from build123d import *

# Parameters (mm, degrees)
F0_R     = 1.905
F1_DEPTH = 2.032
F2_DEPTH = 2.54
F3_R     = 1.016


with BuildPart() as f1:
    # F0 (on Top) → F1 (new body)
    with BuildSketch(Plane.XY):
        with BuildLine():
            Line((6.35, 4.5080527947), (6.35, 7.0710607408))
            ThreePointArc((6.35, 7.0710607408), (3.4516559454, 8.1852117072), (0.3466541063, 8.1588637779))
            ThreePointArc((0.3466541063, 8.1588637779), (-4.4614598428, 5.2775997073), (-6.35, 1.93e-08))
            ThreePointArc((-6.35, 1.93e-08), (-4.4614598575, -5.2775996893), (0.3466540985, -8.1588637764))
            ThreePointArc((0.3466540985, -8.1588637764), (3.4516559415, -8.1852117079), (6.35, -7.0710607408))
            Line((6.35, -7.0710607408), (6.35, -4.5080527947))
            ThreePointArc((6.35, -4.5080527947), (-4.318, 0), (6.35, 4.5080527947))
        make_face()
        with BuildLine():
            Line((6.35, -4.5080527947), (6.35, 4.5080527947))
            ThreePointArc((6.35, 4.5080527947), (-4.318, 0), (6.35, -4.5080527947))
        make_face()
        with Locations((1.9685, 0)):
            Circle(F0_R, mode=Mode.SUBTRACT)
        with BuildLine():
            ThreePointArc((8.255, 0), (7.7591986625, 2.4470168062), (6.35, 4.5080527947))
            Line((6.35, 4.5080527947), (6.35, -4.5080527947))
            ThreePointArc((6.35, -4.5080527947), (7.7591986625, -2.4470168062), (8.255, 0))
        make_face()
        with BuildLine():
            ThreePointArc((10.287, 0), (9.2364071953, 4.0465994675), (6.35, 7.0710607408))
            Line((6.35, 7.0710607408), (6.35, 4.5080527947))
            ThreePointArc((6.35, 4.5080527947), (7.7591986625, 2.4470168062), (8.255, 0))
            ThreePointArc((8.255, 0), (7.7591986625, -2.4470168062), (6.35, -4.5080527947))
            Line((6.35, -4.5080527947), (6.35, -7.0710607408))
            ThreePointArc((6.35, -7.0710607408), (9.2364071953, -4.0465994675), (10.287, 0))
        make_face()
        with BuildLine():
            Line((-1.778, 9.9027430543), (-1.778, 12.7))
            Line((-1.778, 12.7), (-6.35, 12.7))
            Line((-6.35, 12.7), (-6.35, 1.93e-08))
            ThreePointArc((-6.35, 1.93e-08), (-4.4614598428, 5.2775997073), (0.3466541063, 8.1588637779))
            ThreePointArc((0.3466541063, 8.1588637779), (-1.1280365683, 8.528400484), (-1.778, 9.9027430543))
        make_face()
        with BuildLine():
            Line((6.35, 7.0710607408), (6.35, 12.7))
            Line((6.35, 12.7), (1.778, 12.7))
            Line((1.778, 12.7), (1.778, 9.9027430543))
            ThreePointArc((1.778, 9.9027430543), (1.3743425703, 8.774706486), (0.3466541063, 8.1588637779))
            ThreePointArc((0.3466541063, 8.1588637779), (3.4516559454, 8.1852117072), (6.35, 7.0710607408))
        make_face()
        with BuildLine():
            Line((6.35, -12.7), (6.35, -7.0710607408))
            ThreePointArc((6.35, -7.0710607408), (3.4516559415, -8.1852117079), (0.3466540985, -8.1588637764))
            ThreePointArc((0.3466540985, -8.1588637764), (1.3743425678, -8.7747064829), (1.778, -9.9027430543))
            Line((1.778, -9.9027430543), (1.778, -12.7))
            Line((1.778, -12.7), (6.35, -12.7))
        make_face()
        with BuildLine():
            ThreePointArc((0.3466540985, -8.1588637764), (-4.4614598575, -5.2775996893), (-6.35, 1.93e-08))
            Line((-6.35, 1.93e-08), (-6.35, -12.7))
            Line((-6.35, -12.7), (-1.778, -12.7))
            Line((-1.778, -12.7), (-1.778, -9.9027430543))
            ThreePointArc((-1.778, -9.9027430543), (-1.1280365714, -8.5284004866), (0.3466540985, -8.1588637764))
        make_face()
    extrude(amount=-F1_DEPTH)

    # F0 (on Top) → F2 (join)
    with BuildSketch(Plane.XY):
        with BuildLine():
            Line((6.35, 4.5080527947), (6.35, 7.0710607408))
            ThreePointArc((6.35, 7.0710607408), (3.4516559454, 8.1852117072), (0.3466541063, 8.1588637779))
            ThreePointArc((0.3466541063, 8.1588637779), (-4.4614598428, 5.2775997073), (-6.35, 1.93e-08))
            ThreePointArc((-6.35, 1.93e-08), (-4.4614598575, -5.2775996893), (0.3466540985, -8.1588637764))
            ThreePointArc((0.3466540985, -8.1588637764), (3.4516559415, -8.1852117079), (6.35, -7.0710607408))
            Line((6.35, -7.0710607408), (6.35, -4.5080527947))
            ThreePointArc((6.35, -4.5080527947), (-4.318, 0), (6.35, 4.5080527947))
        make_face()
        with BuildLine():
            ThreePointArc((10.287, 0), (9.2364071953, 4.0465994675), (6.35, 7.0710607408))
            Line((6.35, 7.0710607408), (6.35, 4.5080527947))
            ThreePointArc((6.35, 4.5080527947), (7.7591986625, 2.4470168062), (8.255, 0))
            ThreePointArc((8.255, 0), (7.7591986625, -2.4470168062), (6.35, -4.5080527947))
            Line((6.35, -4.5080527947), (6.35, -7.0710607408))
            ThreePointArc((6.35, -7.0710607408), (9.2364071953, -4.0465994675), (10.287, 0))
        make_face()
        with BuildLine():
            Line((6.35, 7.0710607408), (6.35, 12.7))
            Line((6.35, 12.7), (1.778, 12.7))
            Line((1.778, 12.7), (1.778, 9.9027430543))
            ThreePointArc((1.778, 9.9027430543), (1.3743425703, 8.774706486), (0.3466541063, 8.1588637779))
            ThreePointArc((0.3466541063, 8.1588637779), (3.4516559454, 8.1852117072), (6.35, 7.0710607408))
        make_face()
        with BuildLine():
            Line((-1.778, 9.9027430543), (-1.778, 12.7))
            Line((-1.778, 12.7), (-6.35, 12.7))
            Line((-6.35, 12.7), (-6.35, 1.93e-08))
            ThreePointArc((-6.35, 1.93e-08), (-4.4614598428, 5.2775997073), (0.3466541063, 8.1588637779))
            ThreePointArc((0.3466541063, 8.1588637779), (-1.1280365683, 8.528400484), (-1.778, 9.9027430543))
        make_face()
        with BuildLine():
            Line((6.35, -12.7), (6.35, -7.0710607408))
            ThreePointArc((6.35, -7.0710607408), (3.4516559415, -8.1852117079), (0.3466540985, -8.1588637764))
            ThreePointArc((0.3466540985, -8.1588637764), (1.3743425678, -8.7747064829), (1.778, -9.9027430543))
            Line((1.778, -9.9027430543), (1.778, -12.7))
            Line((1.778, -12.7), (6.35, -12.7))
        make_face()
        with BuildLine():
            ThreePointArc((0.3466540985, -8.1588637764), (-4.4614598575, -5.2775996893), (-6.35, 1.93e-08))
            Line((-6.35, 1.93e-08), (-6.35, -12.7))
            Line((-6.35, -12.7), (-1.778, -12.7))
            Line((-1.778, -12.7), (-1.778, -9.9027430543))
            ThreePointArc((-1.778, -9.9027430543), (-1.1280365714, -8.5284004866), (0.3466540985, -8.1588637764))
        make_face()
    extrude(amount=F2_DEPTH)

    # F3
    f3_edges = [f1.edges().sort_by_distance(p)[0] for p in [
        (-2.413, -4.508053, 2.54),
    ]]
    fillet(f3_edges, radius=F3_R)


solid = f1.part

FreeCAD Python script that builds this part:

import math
import FreeCAD as App
import Part
import Sketcher
Q = App.Units.Quantity


def edges_at(feature, points):
    """Names of the edges that pass closest to the given points."""
    edges = feature.Shape.Edges
    near = lambda p: min(range(len(edges)), key=lambda i: edges[i].distToShape(Part.Vertex(*p))[0])
    return sorted({f"Edge{near(p) + 1}" for p in points})

doc = App.newDocument("Part")
body = doc.addObject("PartDesign::Body", "Body")

# Sketch on XY plane
sketch1 = body.newObject("Sketcher::SketchObject", "Sketch")
sketch1.AttachmentSupport = (doc.getObject("XY_Plane"), [""])
sketch1.MapMode = "FlatFace"
sketch1.addGeometry([
    Part.ArcOfCircle(Part.Circle(App.Vector(0, 9.9, 0), App.Vector(0, 0, 1), 1.8), math.radians(180), math.radians(281)),  # 0
    Part.LineSegment(App.Vector(-1.8, 9.9, 0), App.Vector(-1.8, 12.7, 0)),  # 1
    Part.LineSegment(App.Vector(-1.8, 12.7, 0), App.Vector(-6.3, 12.7, 0)),  # 2
    Part.LineSegment(App.Vector(-6.3, 12.7, 0), App.Vector(-6.3, -12.7, 0)),  # 3
    Part.LineSegment(App.Vector(-6.3, -12.7, 0), App.Vector(-1.8, -12.7, 0)),  # 4
    Part.LineSegment(App.Vector(-1.8, -12.7, 0), App.Vector(-1.8, -9.9, 0)),  # 5
    Part.ArcOfCircle(Part.Circle(App.Vector(0, -9.9, 0), App.Vector(0, 0, 1), 1.8), math.radians(79), math.radians(180)),  # 6
    Part.ArcOfCircle(Part.Circle(App.Vector(0, -9.9, 0), App.Vector(0, 0, 1), 1.8), math.radians(0), math.radians(79)),  # 7
    Part.LineSegment(App.Vector(1.8, -9.9, 0), App.Vector(1.8, -12.7, 0)),  # 8
    Part.LineSegment(App.Vector(1.8, -12.7, 0), App.Vector(6.3, -12.7, 0)),  # 9
    Part.LineSegment(App.Vector(6.3, -12.7, 0), App.Vector(6.3, -7.1, 0)),  # 10
    Part.ArcOfCircle(Part.Circle(App.Vector(2, 0, 0), App.Vector(0, 0, 1), 8.3), math.radians(-58), math.radians(0)),  # 11
    Part.ArcOfCircle(Part.Circle(App.Vector(2, 0, 0), App.Vector(0, 0, 1), 8.3), math.radians(0), math.radians(58)),  # 12
    Part.LineSegment(App.Vector(6.3, 7.1, 0), App.Vector(6.3, 12.7, 0)),  # 13
    Part.LineSegment(App.Vector(6.3, 12.7, 0), App.Vector(1.8, 12.7, 0)),  # 14
    Part.LineSegment(App.Vector(1.8, 12.7, 0), App.Vector(1.8, 9.9, 0)),  # 15
    Part.ArcOfCircle(Part.Circle(App.Vector(0, 9.9, 0), App.Vector(0, 0, 1), 1.8), math.radians(-79), math.radians(0)),  # 16
    Part.Circle(App.Vector(2, 0, 0), App.Vector(0, 0, 1), 1.9),  # 17
], False)
sketch1.addConstraint([
    Sketcher.Constraint("Tangent", 0, 1, 1, 1),
    Sketcher.Constraint("Coincident", 1, 2, 2, 1),
    Sketcher.Constraint("Coincident", 2, 2, 3, 1),
    Sketcher.Constraint("Coincident", 3, 2, 4, 1),
    Sketcher.Constraint("Coincident", 4, 2, 5, 1),
    Sketcher.Constraint("Tangent", 5, 2, 6, 2),
    Sketcher.Constraint("Tangent", 6, 1, 7, 2),
    Sketcher.Constraint("Tangent", 7, 1, 8, 1),
    Sketcher.Constraint("Coincident", 8, 2, 9, 1),
    Sketcher.Constraint("Coincident", 9, 2, 10, 1),
    Sketcher.Constraint("Coincident", 10, 2, 11, 1),
    Sketcher.Constraint("Tangent", 11, 2, 12, 1),
    Sketcher.Constraint("Coincident", 12, 2, 13, 1),
    Sketcher.Constraint("Coincident", 13, 2, 14, 1),
    Sketcher.Constraint("Coincident", 14, 2, 15, 1),
    Sketcher.Constraint("Tangent", 15, 2, 16, 2),
    Sketcher.Constraint("Tangent", 16, 1, 0, 2),
    Sketcher.Constraint("Vertical", 1),
    Sketcher.Constraint("Horizontal", 2),
    Sketcher.Constraint("Vertical", 3),
    Sketcher.Constraint("Horizontal", 4),
    Sketcher.Constraint("Vertical", 5),
    Sketcher.Constraint("Vertical", 8),
    Sketcher.Constraint("Horizontal", 9),
    Sketcher.Constraint("Vertical", 10),
    Sketcher.Constraint("Vertical", 13),
    Sketcher.Constraint("Horizontal", 14),
    Sketcher.Constraint("Vertical", 15),
    Sketcher.Constraint("Coincident", 17, 3, 11, 3),
    Sketcher.Constraint("Equal", 0, 6),
    Sketcher.Constraint("Equal", 6, 7),
    Sketcher.Constraint("Equal", 11, 12),
    Sketcher.Constraint("Equal", 7, 16),
    Sketcher.Constraint("Symmetric", 0, 3, 6, 3, -1, 1),
    Sketcher.Constraint("Symmetric", 2, 2, 9, 2, -1, 1),
    Sketcher.Constraint("Symmetric", 3, 2, 13, 2, -1, 1),
    Sketcher.Constraint("Symmetric", 4, 2, 8, 2, -2),
    Sketcher.Constraint("PointOnObject", 11, 3, -1),
    Sketcher.Constraint("PointOnObject", 11, 2, -1),
    Sketcher.Constraint("Vertical", 6, 1, 16, 1),
    Sketcher.Constraint("Diameter", 17, Q("0.15 in")),
    Sketcher.Constraint("DistanceY", 3, 2, 3, 1, Q("1 in")),
    Sketcher.Constraint("Radius", 0, Q("0.07 in")),
    Sketcher.Constraint("DistanceX", 2, 2, 2, 1, Q("0.18 in")),
    Sketcher.Constraint("Radius", 11, Q("0.3275 in")),
    Sketcher.Constraint("DistanceX", -1, 1, 11, 2, Q("0.405 in")),
    Sketcher.Constraint("DistanceY", 1, 1, 1, 2, Q("2.797257 mm")),
    Sketcher.Constraint("DistanceY", 6, 3, 6, 1, Q("1.743879 mm")),
])
pad1 = body.newObject("PartDesign::Pad", "Pad")
pad1.Profile = sketch1
pad1.Length = Q("0.08 in")
pad1.Reversed = True

# Sketch on XY plane
sketch2 = body.newObject("Sketcher::SketchObject", "Sketch001")
sketch2.AttachmentSupport = (doc.getObject("XY_Plane"), [""])
sketch2.MapMode = "FlatFace"
sketch2.addGeometry([
    Part.ArcOfCircle(Part.Circle(App.Vector(0, -9.9, 0), App.Vector(0, 0, 1), 1.8), math.radians(0), math.radians(79)),  # 0
    Part.LineSegment(App.Vector(1.8, -9.9, 0), App.Vector(1.8, -12.7, 0)),  # 1
    Part.LineSegment(App.Vector(1.8, -12.7, 0), App.Vector(6.3, -12.7, 0)),  # 2
    Part.LineSegment(App.Vector(6.3, -12.7, 0), App.Vector(6.3, -7.1, 0)),  # 3
    Part.ArcOfCircle(Part.Circle(App.Vector(2, 0, 0), App.Vector(0, 0, 1), 8.3), math.radians(-58), math.radians(0)),  # 4
    Part.ArcOfCircle(Part.Circle(App.Vector(2, 0, 0), App.Vector(0, 0, 1), 8.3), math.radians(0), math.radians(58)),  # 5
    Part.LineSegment(App.Vector(6.3, 7.1, 0), App.Vector(6.3, 12.7, 0)),  # 6
    Part.LineSegment(App.Vector(6.3, 12.7, 0), App.Vector(1.8, 12.7, 0)),  # 7
    Part.LineSegment(App.Vector(1.8, 12.7, 0), App.Vector(1.8, 9.9, 0)),  # 8
    Part.ArcOfCircle(Part.Circle(App.Vector(0, 9.9, 0), App.Vector(0, 0, 1), 1.8), math.radians(-79), math.radians(0)),  # 9
    Part.ArcOfCircle(Part.Circle(App.Vector(0, 9.9, 0), App.Vector(0, 0, 1), 1.8), math.radians(180), math.radians(281)),  # 10
    Part.LineSegment(App.Vector(-1.8, 9.9, 0), App.Vector(-1.8, 12.7, 0)),  # 11
    Part.LineSegment(App.Vector(-1.8, 12.7, 0), App.Vector(-6.3, 12.7, 0)),  # 12
    Part.LineSegment(App.Vector(-6.3, 12.7, 0), App.Vector(-6.3, -12.7, 0)),  # 13
    Part.LineSegment(App.Vector(-6.3, -12.7, 0), App.Vector(-1.8, -12.7, 0)),  # 14
    Part.LineSegment(App.Vector(-1.8, -12.7, 0), App.Vector(-1.8, -9.9, 0)),  # 15
    Part.ArcOfCircle(Part.Circle(App.Vector(0, -9.9, 0), App.Vector(0, 0, 1), 1.8), math.radians(79), math.radians(180)),  # 16
    Part.ArcOfCircle(Part.Circle(App.Vector(2, 0, 0), App.Vector(0, 0, 1), 6.3), math.radians(46), math.radians(314)),  # 17
    Part.ArcOfCircle(Part.Circle(App.Vector(2, 0, 0), App.Vector(0, 0, 1), 6.3), math.radians(0), math.radians(46)),  # 18
    Part.ArcOfCircle(Part.Circle(App.Vector(2, 0, 0), App.Vector(0, 0, 1), 6.3), math.radians(-46), math.radians(0)),  # 19
], False)
sketch2.addConstraint([
    Sketcher.Constraint("Tangent", 0, 1, 1, 1),
    Sketcher.Constraint("Coincident", 1, 2, 2, 1),
    Sketcher.Constraint("Coincident", 2, 2, 3, 1),
    Sketcher.Constraint("Coincident", 3, 2, 4, 1),
    Sketcher.Constraint("Tangent", 4, 2, 5, 1),
    Sketcher.Constraint("Coincident", 5, 2, 6, 1),
    Sketcher.Constraint("Coincident", 6, 2, 7, 1),
    Sketcher.Constraint("Coincident", 7, 2, 8, 1),
    Sketcher.Constraint("Tangent", 8, 2, 9, 2),
    Sketcher.Constraint("Tangent", 9, 1, 10, 2),
    Sketcher.Constraint("Tangent", 10, 1, 11, 1),
    Sketcher.Constraint("Coincident", 11, 2, 12, 1),
    Sketcher.Constraint("Coincident", 12, 2, 13, 1),
    Sketcher.Constraint("Coincident", 13, 2, 14, 1),
    Sketcher.Constraint("Coincident", 14, 2, 15, 1),
    Sketcher.Constraint("Tangent", 15, 2, 16, 2),
    Sketcher.Constraint("Tangent", 16, 1, 0, 2),
    Sketcher.Constraint("Tangent", 17, 1, 18, 2),
    Sketcher.Constraint("Tangent", 18, 1, 19, 2),
    Sketcher.Constraint("Tangent", 19, 1, 17, 2),
    Sketcher.Constraint("Vertical", 1),
    Sketcher.Constraint("Horizontal", 2),
    Sketcher.Constraint("Vertical", 3),
    Sketcher.Constraint("Vertical", 6),
    Sketcher.Constraint("Horizontal", 7),
    Sketcher.Constraint("Vertical", 8),
    Sketcher.Constraint("Vertical", 11),
    Sketcher.Constraint("Horizontal", 12),
    Sketcher.Constraint("Vertical", 13),
    Sketcher.Constraint("Horizontal", 14),
    Sketcher.Constraint("Vertical", 15),
    Sketcher.Constraint("Coincident", 17, 3, 4, 3),
    Sketcher.Constraint("Equal", 4, 5),
    Sketcher.Constraint("Equal", 0, 9),
    Sketcher.Constraint("Equal", 9, 10),
    Sketcher.Constraint("Equal", 10, 16),
    Sketcher.Constraint("Symmetric", 0, 3, 9, 3, -1, 1),
    Sketcher.Constraint("Symmetric", 2, 2, 12, 2, -1, 1),
    Sketcher.Constraint("Symmetric", 6, 2, 13, 2, -1, 1),
    Sketcher.Constraint("Symmetric", 7, 2, 11, 2, -2),
    Sketcher.Constraint("Symmetric", 17, 1, 19, 1, -1),
    Sketcher.Constraint("PointOnObject", 4, 2, -1),
    Sketcher.Constraint("PointOnObject", 18, 1, -1),
    Sketcher.Constraint("Vertical", 9, 1, 16, 1),
    Sketcher.Constraint("Vertical", 6, 2, 17, 1),
    Sketcher.Constraint("DistanceY", 13, 2, 13, 1, Q("1 in")),
    Sketcher.Constraint("Radius", 0, Q("0.07 in")),
    Sketcher.Constraint("DistanceX", 2, 1, 2, 2, Q("0.18 in")),
    Sketcher.Constraint("Radius", 4, Q("0.3275 in")),
    Sketcher.Constraint("Radius", 17, Q("0.2475 in")),
    Sketcher.Constraint("DistanceX", -1, 1, 4, 2, Q("0.405 in")),
    Sketcher.Constraint("DistanceY", 1, 2, 1, 1, Q("2.797257 mm")),
    Sketcher.Constraint("DistanceY", 9, 1, 9, 3, Q("1.743879 mm")),
])
pad2 = body.newObject("PartDesign::Pad", "Pad001")
pad2.Profile = sketch2
pad2.Length = Q("0.1 in")
doc.recompute()

fillet = body.newObject("PartDesign::Fillet", "Fillet")
fillet.Base = (pad2, edges_at(pad2, [(-4.318, 0, 2.54)]))
fillet.Radius = Q("0.04 in")

doc.recompute()
